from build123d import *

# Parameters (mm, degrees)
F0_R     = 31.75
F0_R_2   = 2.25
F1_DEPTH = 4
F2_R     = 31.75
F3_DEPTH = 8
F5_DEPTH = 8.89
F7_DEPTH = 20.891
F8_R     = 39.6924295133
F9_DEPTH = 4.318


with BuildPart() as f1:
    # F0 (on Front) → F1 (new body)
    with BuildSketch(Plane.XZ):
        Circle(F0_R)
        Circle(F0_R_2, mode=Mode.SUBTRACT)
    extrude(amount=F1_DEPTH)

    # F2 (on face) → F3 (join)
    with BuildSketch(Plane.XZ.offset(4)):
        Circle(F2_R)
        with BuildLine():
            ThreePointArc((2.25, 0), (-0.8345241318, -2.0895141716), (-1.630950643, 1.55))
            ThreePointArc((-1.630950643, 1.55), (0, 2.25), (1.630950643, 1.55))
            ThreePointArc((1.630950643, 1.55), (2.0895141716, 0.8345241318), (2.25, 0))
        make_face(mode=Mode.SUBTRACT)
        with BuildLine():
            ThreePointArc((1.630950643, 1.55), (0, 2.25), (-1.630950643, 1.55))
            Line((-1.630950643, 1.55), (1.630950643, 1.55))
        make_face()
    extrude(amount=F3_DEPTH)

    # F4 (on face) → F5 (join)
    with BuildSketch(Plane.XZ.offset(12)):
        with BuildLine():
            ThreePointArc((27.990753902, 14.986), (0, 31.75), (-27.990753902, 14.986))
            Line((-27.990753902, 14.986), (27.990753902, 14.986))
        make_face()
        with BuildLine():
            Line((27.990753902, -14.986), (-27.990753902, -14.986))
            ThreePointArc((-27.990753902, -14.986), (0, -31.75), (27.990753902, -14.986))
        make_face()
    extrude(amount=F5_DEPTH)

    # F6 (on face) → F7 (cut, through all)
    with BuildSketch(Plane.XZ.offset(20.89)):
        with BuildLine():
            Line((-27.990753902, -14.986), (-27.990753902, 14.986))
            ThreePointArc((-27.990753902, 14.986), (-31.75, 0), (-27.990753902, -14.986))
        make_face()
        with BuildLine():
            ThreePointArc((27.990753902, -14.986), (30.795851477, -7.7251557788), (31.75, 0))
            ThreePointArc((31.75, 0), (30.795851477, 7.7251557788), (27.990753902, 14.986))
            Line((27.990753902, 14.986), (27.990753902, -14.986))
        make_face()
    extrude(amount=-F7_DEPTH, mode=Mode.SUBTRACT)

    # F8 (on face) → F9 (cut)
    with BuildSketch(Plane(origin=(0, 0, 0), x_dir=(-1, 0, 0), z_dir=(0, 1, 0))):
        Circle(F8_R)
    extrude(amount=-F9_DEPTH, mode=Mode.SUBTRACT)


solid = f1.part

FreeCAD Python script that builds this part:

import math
import FreeCAD as App
import Part
import Sketcher
Q = App.Units.Quantity

doc = App.newDocument("Part")
body = doc.addObject("PartDesign::Body", "Body")

sketch1 = doc.addObject("Sketcher::SketchObject", "Sketch")
body.addObject(sketch1)
sketch1.AttachmentSupport = (doc.XZ_Plane, [""])
sketch1.MapMode = "FlatFace"
sketch1.addGeometry(Part.Circle(App.Vector(0, 0, 0), App.Vector(0, 0, 1), 31.8), False)
sketch1.addGeometry(Part.Circle(App.Vector(0, 0, 0), App.Vector(0, 0, 1), 2.2), False)
sketch1.addConstraint(Sketcher.Constraint("Coincident", 0, 3, -1, 1))
sketch1.addConstraint(Sketcher.Constraint("Coincident", 1, 3, -1, 1))
sketch1.addConstraint(Sketcher.Constraint("Diameter", 0, Q("2.5 in")))
sketch1.addConstraint(Sketcher.Constraint("Diameter", 1, 4.5))
pad1 = doc.addObject("PartDesign::Pad", "Pad")
body.addObject(pad1)
pad1.Profile = sketch1
pad1.Length = 4

sketch2 = doc.addObject("Sketcher::SketchObject", "Sketch001")
body.addObject(sketch2)
sketch2.AttachmentSupport = (doc.XZ_Plane, [""])
sketch2.MapMode = "FlatFace"
sketch2.AttachmentOffset = App.Placement(App.Vector(0, 0, 4), App.Rotation())
sketch2.addGeometry(Part.Circle(App.Vector(0, 0, 0), App.Vector(0, 0, 1), 31.8), False)
sketch2.addGeometry(Part.ArcOfCircle(Part.Circle(App.Vector(0, 0, 0), App.Vector(0, 0, 1), 2.2), math.radians(0), math.radians(44)), False)
sketch2.addGeometry(Part.ArcOfCircle(Part.Circle(App.Vector(0, 0, 0), App.Vector(0, 0, 1), 2.2), math.radians(136), math.radians(360)), False)
sketch2.addGeometry(Part.LineSegment(App.Vector(-1.6, 1.6, 0), App.Vector(1.6, 1.6, 0)), False)
sketch2.addConstraint(Sketcher.Constraint("Tangent", 1, 1, 2, 2))
sketch2.addConstraint(Sketcher.Constraint("Coincident", 2, 1, 3, 1))
sketch2.addConstraint(Sketcher.Constraint("Coincident", 3, 2, 1, 2))
sketch2.addConstraint(Sketcher.Constraint("Horizontal", 3))
sketch2.addConstraint(Sketcher.Constraint("Coincident", 0, 3, -1, 1))
sketch2.addConstraint(Sketcher.Constraint("Coincident", 1, 3, -1, 1))
sketch2.addConstraint(Sketcher.Constraint("Equal", 1, 2))
sketch2.addConstraint(Sketcher.Constraint("PointOnObject", 1, 1, -1))
sketch2.addConstraint(Sketcher.Constraint("Diameter", 0, Q("2.5 in")))
sketch2.addConstraint(Sketcher.Constraint("Radius", 1, 2.25))
sketch2.addConstraint(Sketcher.Constraint("DistanceX", 3, 1, 3, 2, 3.261901))
pad2 = doc.addObject("PartDesign::Pad", "Pad001")
body.addObject(pad2)
pad2.Profile = sketch2
pad2.Length = 8

sketch3 = doc.addObject("Sketcher::SketchObject", "Sketch002")
body.addObject(sketch3)
sketch3.AttachmentSupport = (doc.XZ_Plane, [""])
sketch3.MapMode = "FlatFace"
sketch3.AttachmentOffset = App.Placement(App.Vector(0, 0, 12), App.Rotation())
sketch3.addGeometry(Part.ArcOfCircle(Part.Circle(App.Vector(0, 0, 0), App.Vector(0, 0, 1), 32), math.radians(28), math.radians(152)), False)
sketch3.addGeometry(Part.LineSegment(App.Vector(-28, 15, 0), App.Vector(28, 15, 0)), False)
sketch3.addGeometry(Part.LineSegment(App.Vector(28, -15, 0), App.Vector(-28, -15, 0)), False)
sketch3.addGeometry(Part.ArcOfCircle(Part.Circle(App.Vector(0, 0, 0), App.Vector(0, 0, 1), 32), math.radians(-152), math.radians(-28)), False)
sketch3.addConstraint(Sketcher.Constraint("Coincident", 0, 1, 1, 2))
sketch3.addConstraint(Sketcher.Constraint("Coincident", 1, 1, 0, 2))
sketch3.addConstraint(Sketcher.Constraint("Coincident", 2, 1, 3, 2))
sketch3.addConstraint(Sketcher.Constraint("Coincident", 3, 1, 2, 2))
sketch3.addConstraint(Sketcher.Constraint("Horizontal", 1))
sketch3.addConstraint(Sketcher.Constraint("Horizontal", 2))
sketch3.addConstraint(Sketcher.Constraint("Coincident", 0, 3, -1, 1))
sketch3.addConstraint(Sketcher.Constraint("Coincident", 3, 3, -1, 1))
sketch3.addConstraint(Sketcher.Constraint("Equal", 0, 3))
sketch3.addConstraint(Sketcher.Constraint("Vertical", 0, 1, 2, 1))
sketch3.addConstraint(Sketcher.Constraint("Radius", 0, Q("1.25 in")))
sketch3.addConstraint(Sketcher.Constraint("DistanceY", -1, 1, 0, 1, Q("0.59 in")))
pad3 = doc.addObject("PartDesign::Pad", "Pad002")
body.addObject(pad3)
pad3.Profile = sketch3
pad3.Length = Q("0.35 in")

sketch4 = doc.addObject("Sketcher::SketchObject", "Sketch003")
body.addObject(sketch4)
sketch4.AttachmentSupport = (doc.XZ_Plane, [""])
sketch4.MapMode = "FlatFace"
sketch4.AttachmentOffset = App.Placement(App.Vector(0, 0, 20.89), App.Rotation())
sketch4.addGeometry(Part.LineSegment(App.Vector(-28, -15, 0), App.Vector(-28, 15, 0)), False)
sketch4.addGeometry(Part.ArcOfCircle(Part.Circle(App.Vector(0, 0, 0), App.Vector(0, 0, 1), 32), math.radians(152), math.radians(208)), False)
sketch4.addGeometry(Part.ArcOfCircle(Part.Circle(App.Vector(0, 0, 0), App.Vector(0, 0, 1), 32), math.radians(-28), math.radians(0)), False)
sketch4.addGeometry(Part.ArcOfCircle(Part.Circle(App.Vector(0, 0, 0), App.Vector(0, 0, 1), 32), math.radians(0), math.radians(28)), False)
sketch4.addGeometry(Part.LineSegment(App.Vector(28, 15, 0), App.Vector(28, -15, 0)), False)
sketch4.addConstraint(Sketcher.Constraint("Coincident", 0, 1, 1, 2))
sketch4.addConstraint(Sketcher.Constraint("Coincident", 1, 1, 0, 2))
sketch4.addConstraint(Sketcher.Constraint("Tangent", 2, 2, 3, 1))
sketch4.addConstraint(Sketcher.Constraint("Coincident", 3, 2, 4, 1))
sketch4.addConstraint(Sketcher.Constraint("Coincident", 4, 2, 2, 1))
sketch4.addConstraint(Sketcher.Constraint("Vertical", 0))
sketch4.addConstraint(Sketcher.Constraint("Vertical", 4))
sketch4.addConstraint(Sketcher.Constraint("Coincident", 1, 3, -1, 1))
sketch4.addConstraint(Sketcher.Constraint("Coincident", 2, 3, -1, 1))
sketch4.addConstraint(Sketcher.Constraint("Equal", 1, 2))
sketch4.addConstraint(Sketcher.Constraint("Equal", 2, 3))
sketch4.addConstraint(Sketcher.Constraint("PointOnObject", 2, 2, -1))
sketch4.addConstraint(Sketcher.Constraint("Horizontal", 1, 1, 3, 2))
sketch4.addConstraint(Sketcher.Constraint("Radius", 1, Q("1.25 in")))
sketch4.addConstraint(Sketcher.Constraint("DistanceY", 0, 1, 0, 2, Q("1.18 in")))
pocket1 = doc.addObject("PartDesign::Pocket", "Pocket")
body.addObject(pocket1)
pocket1.Profile = sketch4
pocket1.Type = "ThroughAll"

sketch5 = doc.addObject("Sketcher::SketchObject", "Sketch004")
body.addObject(sketch5)
sketch5.AttachmentSupport = (doc.XZ_Plane, [""])
sketch5.MapMode = "FlatFace"
sketch5.addGeometry(Part.Circle(App.Vector(0, 0, 0), App.Vector(0, 0, 1), 40), False)
sketch5.addConstraint(Sketcher.Constraint("Coincident", 0, 3, -1, 1))
sketch5.addConstraint(Sketcher.Constraint("Diameter", 0, 79.384859))
pocket2 = doc.addObject("PartDesign::Pocket", "Pocket001")
body.addObject(pocket2)
pocket2.Profile = sketch5
pocket2.Length = Q("0.17 in")
pocket2.Reversed = True

doc.recompute()
